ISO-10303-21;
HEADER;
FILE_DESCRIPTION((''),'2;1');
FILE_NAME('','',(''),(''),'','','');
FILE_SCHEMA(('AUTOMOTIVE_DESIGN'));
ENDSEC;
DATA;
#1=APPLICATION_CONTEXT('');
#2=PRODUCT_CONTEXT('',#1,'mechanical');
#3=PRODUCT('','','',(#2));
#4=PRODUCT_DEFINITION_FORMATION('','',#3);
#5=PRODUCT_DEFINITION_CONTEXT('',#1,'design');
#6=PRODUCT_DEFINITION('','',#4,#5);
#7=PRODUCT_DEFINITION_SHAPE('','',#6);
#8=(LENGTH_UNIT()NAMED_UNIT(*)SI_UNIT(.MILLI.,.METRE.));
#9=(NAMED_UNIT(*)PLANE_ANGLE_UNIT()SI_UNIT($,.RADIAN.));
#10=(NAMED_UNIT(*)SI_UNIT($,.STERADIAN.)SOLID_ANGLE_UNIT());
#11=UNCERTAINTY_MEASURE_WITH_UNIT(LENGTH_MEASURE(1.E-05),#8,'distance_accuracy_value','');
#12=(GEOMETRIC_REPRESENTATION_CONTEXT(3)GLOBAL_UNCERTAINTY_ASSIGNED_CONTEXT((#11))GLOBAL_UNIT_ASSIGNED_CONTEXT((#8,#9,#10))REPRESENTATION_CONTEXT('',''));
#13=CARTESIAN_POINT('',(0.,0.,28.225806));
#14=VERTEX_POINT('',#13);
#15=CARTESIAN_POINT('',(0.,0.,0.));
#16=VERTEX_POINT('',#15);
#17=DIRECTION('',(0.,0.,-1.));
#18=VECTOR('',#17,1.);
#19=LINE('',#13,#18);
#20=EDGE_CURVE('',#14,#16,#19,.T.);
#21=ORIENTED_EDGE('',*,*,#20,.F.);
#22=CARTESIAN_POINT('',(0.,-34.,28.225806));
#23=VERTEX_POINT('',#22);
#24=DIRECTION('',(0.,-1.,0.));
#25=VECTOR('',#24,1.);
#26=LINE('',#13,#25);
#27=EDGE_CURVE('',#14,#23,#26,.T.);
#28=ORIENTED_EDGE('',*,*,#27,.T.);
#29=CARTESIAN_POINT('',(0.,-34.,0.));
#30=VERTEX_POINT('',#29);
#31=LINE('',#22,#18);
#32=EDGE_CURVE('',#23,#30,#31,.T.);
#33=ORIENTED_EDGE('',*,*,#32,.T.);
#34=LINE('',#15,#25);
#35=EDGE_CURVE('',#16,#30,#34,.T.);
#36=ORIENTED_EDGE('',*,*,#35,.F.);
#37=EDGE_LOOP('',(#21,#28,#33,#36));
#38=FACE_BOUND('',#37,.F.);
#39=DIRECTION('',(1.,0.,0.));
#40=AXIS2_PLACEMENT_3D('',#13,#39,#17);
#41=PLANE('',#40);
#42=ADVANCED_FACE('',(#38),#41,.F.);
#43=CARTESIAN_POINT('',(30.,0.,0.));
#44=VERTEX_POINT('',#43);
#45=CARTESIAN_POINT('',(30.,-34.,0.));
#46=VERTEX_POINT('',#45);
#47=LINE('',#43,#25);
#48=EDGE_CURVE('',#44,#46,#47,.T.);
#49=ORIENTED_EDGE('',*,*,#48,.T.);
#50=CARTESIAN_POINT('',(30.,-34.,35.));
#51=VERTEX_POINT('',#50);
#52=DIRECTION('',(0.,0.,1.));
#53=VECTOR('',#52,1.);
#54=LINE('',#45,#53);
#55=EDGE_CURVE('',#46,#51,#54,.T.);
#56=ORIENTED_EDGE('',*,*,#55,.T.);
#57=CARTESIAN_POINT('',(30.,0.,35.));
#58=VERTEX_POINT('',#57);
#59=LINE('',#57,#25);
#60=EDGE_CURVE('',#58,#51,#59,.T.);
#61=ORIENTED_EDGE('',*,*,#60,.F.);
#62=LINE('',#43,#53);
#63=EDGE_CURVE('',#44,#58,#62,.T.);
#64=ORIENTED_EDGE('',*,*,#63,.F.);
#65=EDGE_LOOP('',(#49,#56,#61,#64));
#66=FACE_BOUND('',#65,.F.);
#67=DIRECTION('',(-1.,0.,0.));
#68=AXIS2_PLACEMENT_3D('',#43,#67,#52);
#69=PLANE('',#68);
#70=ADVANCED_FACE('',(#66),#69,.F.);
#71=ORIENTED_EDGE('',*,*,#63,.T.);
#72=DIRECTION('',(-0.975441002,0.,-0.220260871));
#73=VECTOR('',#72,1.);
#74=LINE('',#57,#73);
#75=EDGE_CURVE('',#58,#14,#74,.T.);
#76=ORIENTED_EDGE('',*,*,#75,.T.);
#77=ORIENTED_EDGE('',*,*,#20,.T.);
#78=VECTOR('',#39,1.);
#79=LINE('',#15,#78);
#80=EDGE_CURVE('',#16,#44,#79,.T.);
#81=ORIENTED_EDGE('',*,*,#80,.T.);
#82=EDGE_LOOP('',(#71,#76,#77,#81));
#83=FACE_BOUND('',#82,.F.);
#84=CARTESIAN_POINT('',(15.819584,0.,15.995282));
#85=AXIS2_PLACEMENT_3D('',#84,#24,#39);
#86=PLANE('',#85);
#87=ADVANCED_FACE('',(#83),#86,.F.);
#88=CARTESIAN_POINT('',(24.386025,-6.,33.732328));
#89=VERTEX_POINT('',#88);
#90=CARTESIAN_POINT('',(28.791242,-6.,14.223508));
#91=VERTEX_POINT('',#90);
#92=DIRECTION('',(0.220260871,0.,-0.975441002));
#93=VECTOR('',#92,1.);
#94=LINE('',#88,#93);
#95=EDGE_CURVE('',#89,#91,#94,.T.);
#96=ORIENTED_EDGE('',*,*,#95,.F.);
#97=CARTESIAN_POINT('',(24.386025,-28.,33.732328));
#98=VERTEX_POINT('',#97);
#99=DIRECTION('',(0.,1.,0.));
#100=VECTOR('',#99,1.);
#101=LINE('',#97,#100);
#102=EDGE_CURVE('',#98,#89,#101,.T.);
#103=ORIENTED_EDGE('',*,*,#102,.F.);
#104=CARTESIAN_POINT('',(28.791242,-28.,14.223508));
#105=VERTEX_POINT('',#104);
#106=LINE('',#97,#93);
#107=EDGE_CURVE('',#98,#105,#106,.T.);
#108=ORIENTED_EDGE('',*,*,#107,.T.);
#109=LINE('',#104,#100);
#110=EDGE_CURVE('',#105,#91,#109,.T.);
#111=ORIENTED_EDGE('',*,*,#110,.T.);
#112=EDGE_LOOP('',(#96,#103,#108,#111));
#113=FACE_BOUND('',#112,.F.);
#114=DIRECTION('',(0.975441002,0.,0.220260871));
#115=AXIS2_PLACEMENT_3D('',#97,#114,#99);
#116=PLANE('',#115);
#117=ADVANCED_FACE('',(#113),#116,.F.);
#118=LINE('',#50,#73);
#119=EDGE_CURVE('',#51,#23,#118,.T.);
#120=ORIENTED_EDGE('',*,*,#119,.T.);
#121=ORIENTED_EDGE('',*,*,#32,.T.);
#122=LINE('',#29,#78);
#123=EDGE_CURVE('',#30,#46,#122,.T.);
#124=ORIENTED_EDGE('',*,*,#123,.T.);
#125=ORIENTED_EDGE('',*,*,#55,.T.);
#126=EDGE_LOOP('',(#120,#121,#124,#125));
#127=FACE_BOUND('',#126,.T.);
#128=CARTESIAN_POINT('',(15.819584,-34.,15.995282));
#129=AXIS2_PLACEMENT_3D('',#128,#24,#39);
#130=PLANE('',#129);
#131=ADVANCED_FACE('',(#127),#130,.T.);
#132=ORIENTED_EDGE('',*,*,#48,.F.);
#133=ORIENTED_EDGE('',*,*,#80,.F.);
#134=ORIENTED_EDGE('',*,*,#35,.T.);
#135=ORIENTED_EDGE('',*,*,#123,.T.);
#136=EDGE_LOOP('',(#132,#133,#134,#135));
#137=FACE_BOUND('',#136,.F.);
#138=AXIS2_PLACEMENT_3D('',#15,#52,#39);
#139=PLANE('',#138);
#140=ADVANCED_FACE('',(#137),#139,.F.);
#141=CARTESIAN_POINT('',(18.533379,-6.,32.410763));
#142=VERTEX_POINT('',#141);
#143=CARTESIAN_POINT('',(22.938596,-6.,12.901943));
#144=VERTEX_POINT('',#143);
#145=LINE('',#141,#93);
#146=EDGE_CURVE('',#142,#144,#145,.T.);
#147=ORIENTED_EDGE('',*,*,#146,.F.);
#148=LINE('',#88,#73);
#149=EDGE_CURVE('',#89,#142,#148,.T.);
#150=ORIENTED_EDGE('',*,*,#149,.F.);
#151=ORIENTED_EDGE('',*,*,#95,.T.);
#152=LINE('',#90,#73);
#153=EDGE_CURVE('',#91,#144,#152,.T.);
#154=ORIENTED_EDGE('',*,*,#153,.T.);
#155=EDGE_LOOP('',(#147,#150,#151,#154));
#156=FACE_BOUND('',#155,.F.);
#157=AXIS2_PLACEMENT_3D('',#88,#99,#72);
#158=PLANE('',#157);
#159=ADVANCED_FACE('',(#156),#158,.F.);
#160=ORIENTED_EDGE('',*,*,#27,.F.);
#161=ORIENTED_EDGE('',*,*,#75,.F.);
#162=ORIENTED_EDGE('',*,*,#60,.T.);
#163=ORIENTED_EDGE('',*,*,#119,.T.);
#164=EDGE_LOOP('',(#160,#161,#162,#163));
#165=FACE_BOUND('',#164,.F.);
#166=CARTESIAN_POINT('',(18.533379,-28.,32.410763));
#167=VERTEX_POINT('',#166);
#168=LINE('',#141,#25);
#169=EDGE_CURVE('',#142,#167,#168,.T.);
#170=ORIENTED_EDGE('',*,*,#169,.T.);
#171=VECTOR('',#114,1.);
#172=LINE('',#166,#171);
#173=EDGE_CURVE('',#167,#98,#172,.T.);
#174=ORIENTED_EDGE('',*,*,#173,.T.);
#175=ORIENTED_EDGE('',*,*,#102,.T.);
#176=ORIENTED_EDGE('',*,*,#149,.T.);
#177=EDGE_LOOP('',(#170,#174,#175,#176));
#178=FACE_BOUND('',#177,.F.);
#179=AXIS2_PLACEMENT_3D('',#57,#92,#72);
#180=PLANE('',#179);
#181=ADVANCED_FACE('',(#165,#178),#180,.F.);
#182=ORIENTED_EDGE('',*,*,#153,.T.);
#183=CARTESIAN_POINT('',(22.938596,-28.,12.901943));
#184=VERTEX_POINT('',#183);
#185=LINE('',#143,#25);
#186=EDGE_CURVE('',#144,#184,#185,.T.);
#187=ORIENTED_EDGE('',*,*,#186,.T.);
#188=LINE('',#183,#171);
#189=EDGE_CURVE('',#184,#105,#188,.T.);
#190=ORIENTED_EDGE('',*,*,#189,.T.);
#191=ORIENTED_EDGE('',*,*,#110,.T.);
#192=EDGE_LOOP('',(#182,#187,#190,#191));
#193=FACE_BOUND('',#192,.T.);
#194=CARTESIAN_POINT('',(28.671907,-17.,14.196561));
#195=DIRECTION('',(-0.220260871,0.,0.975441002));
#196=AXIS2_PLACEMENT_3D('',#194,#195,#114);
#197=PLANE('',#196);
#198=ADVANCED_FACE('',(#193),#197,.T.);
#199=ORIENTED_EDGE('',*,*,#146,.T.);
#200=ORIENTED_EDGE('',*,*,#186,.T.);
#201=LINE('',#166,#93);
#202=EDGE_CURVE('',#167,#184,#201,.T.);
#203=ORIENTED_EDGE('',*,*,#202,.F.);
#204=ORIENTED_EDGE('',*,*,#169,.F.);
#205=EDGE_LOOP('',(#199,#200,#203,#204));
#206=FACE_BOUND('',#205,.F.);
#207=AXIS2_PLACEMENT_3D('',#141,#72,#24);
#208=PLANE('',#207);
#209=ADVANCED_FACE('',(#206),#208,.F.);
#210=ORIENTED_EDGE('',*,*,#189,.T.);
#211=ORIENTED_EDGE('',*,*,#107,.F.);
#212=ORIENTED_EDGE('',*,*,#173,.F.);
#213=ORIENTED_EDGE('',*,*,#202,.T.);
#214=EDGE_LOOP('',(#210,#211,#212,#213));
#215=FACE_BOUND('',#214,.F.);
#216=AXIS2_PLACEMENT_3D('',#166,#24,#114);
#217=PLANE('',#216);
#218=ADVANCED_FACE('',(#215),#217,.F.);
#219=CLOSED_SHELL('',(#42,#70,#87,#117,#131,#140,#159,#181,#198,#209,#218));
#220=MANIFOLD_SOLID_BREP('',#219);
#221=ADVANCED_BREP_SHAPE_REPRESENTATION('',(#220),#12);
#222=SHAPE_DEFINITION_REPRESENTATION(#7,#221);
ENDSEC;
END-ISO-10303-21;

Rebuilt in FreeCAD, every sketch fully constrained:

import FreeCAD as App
import Part
import Sketcher
Q = App.Units.Quantity


def add_polygon(sketch, points):
    """Adds a closed chain of lines whose ends are joined by coincident constraints."""
    first, n = sketch.GeometryCount, len(points)
    for a, b in zip(points, points[1:] + points[:1]):
        sketch.addGeometry(Part.LineSegment(App.Vector(*a, 0), App.Vector(*b, 0)), False)
    for i in range(n):
        sketch.addConstraint(Sketcher.Constraint("Coincident", first + i, 2, first + (i + 1) % n, 1))

doc = App.newDocument("Part")
body = doc.addObject("PartDesign::Body", "Body")

sketch1 = doc.addObject("Sketcher::SketchObject", "Sketch")
body.addObject(sketch1)
sketch1.AttachmentSupport = (doc.XZ_Plane, [""])
sketch1.MapMode = "FlatFace"
add_polygon(sketch1, [(0, 28), (0, 0), (30, 0), (30, 35)])
sketch1.addConstraint([
    Sketcher.Constraint("Vertical", 0),
    Sketcher.Constraint("Horizontal", 1),
    Sketcher.Constraint("Vertical", 2),
    Sketcher.Constraint("Coincident", 0, 2, -1, 1),
    Sketcher.Constraint("DistanceX", 1, 1, 1, 2, Q("30 mm")),
    Sketcher.Constraint("DistanceY", 2, 1, 2, 2, Q("35 mm")),
    Sketcher.Constraint("Distance", 3, Q("30.75532 mm")),
])
pad1 = doc.addObject("PartDesign::Pad", "Pad")
body.addObject(pad1)
pad1.Profile = sketch1
pad1.Length = 34

sketch2 = doc.addObject("Sketcher::SketchObject", "Sketch001")
body.addObject(sketch2)
sketch2.Placement = App.Placement(App.Vector(-6.064356, 0, 26.856436), App.Rotation(App.Vector(0.975441002, 0, 0.220260871), App.Vector(0, 1, 0), App.Vector(-0.220260871, 0, 0.975441002), "ZXY"))
add_polygon(sketch2, [(31, -28), (31, -6), (25, -6), (25, -28)])
sketch2.addConstraint([
    Sketcher.Constraint("Vertical", 0),
    Sketcher.Constraint("Horizontal", 1),
    Sketcher.Constraint("Vertical", 2),
    Sketcher.Constraint("Horizontal", 3),
    Sketcher.Constraint("DistanceX", 1, 2, 1, 1, Q("6 mm")),
    Sketcher.Constraint("DistanceY", 0, 1, 0, 2, Q("22 mm")),
    Sketcher.Constraint("DistanceY", 0, 2, -1, 1, Q("6 mm")),
    Sketcher.Constraint("DistanceX", -1, 1, 0, 2, Q("31.217041 mm")),
])
pocket1 = doc.addObject("PartDesign::Pocket", "Pocket")
body.addObject(pocket1)
pocket1.Profile = sketch2
pocket1.Length = 20

doc.recompute()
